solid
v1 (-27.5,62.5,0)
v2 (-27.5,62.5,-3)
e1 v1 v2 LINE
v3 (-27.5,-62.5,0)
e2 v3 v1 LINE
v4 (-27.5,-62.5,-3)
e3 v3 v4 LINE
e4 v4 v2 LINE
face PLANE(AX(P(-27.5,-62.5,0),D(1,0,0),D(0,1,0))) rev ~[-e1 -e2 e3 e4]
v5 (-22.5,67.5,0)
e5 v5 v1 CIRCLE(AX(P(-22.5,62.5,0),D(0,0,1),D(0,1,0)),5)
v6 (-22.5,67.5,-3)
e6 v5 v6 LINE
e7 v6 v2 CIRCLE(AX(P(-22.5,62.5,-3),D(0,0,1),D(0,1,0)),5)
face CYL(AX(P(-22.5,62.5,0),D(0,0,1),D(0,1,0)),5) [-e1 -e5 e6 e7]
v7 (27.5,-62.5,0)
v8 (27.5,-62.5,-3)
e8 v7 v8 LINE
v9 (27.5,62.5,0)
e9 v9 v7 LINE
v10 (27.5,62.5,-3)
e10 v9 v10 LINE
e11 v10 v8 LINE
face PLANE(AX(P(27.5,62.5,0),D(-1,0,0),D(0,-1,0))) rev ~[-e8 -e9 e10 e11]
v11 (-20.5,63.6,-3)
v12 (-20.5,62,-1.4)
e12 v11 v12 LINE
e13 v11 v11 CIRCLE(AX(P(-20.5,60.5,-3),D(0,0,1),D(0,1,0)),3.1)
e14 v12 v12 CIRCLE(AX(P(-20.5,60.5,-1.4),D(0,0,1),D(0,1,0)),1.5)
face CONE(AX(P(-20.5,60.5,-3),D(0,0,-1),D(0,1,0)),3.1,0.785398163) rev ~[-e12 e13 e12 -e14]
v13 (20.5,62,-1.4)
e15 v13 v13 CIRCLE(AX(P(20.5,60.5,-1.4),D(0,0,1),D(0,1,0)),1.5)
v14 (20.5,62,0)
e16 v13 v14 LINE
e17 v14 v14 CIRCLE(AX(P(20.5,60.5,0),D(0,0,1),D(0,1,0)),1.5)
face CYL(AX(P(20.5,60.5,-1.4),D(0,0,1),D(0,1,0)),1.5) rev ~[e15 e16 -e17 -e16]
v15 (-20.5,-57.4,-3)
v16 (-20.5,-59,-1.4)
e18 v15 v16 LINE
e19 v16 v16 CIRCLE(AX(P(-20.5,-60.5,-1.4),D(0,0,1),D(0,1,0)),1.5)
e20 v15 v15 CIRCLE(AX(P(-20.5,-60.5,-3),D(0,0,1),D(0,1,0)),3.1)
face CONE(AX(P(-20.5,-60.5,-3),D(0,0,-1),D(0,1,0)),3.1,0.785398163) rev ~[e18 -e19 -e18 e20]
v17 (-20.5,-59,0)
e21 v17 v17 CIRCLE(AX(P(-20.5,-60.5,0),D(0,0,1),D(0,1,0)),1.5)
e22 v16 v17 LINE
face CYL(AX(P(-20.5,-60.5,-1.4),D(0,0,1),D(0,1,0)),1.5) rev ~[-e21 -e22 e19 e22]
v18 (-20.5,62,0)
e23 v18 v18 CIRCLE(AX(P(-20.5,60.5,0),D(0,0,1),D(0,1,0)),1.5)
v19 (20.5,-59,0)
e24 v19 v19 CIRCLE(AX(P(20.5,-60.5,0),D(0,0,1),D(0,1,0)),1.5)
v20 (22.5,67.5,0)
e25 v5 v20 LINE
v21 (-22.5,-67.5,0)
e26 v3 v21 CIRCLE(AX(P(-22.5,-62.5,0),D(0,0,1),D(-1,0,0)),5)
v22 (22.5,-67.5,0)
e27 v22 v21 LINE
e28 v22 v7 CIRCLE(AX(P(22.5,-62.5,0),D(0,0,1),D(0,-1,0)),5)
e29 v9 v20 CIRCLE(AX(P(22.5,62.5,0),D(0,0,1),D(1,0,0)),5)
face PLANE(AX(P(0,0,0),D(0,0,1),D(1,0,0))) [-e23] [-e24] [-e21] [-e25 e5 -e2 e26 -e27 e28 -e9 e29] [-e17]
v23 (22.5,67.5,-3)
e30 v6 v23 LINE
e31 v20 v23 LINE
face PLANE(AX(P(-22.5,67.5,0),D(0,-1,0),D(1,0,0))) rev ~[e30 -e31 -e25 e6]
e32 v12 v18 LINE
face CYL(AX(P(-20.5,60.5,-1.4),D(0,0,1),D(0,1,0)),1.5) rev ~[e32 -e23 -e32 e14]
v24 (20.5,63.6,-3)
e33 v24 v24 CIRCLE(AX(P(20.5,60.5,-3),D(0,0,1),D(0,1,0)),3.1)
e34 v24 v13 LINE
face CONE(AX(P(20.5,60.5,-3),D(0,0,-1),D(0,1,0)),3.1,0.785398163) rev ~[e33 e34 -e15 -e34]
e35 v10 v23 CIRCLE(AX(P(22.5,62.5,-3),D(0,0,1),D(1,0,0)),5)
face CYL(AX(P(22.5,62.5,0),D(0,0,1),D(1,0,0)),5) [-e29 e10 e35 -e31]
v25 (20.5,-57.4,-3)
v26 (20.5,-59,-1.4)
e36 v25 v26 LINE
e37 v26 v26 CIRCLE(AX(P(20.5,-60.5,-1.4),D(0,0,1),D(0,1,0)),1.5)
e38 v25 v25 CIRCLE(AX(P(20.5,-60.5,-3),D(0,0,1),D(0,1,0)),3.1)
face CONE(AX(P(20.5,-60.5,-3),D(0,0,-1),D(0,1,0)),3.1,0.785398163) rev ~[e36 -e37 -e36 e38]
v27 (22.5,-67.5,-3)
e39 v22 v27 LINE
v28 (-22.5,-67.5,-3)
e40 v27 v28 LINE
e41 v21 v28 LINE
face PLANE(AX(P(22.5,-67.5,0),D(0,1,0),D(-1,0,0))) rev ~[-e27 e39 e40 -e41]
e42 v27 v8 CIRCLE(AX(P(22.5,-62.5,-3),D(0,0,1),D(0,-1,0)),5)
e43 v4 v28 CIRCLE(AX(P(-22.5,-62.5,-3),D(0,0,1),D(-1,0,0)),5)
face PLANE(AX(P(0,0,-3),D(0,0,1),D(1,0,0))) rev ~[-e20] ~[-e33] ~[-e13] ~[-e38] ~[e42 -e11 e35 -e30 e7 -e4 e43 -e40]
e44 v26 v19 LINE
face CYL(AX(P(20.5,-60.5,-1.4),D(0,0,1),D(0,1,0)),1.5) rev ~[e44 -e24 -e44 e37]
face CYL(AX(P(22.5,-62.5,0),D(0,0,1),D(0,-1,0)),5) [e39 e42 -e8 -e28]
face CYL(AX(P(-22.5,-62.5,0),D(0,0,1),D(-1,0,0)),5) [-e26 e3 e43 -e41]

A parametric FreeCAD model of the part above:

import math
import FreeCAD as App
import Part
import Sketcher
from FreeCAD import Vector

doc = App.newDocument("Part")
body = doc.addObject("PartDesign::Body", "Body")

# Sketch on XY plane
sketch1 = doc.addObject("Sketcher::SketchObject", "Sketch")
body.addObject(sketch1)
sketch1.AttachmentSupport = (doc.XY_Plane, [""])
sketch1.MapMode = "FlatFace"
sketch1.addGeometry([
    Part.LineSegment(Vector(-22, -68, 0), Vector(22, -68, 0)),  # 0
    Part.ArcOfCircle(Part.Circle(Vector(22, -62, 0), Vector(0, 0, 1), 5), math.radians(-90), math.radians(0)),  # 1
    Part.LineSegment(Vector(28, -62, 0), Vector(28, 62, 0)),  # 2
    Part.ArcOfCircle(Part.Circle(Vector(22, 62, 0), Vector(0, 0, 1), 5), math.radians(0), math.radians(90)),  # 3
    Part.LineSegment(Vector(22, 68, 0), Vector(-22, 68, 0)),  # 4
    Part.ArcOfCircle(Part.Circle(Vector(-22, 62, 0), Vector(0, 0, 1), 5), math.radians(90), math.radians(180)),  # 5
    Part.LineSegment(Vector(-28, 62, 0), Vector(-28, -62, 0)),  # 6
    Part.ArcOfCircle(Part.Circle(Vector(-22, -62, 0), Vector(0, 0, 1), 5), math.radians(180), math.radians(270)),  # 7
], False)
sketch1.addConstraint([
    Sketcher.Constraint("Tangent", 0, 2, 1, 1),
    Sketcher.Constraint("Tangent", 1, 2, 2, 1),
    Sketcher.Constraint("Tangent", 2, 2, 3, 1),
    Sketcher.Constraint("Tangent", 3, 2, 4, 1),
    Sketcher.Constraint("Tangent", 4, 2, 5, 1),
    Sketcher.Constraint("Tangent", 5, 2, 6, 1),
    Sketcher.Constraint("Tangent", 6, 2, 7, 1),
    Sketcher.Constraint("Tangent", 7, 2, 0, 1),
    Sketcher.Constraint("Horizontal", 0),
    Sketcher.Constraint("Vertical", 2),
    Sketcher.Constraint("Horizontal", 4),
    Sketcher.Constraint("Vertical", 6),
    Sketcher.Constraint("Equal", 1, 3),
    Sketcher.Constraint("Equal", 3, 5),
    Sketcher.Constraint("Equal", 5, 7),
    Sketcher.Constraint("Symmetric", 1, 3, 5, 3, -1, 1),
    Sketcher.Constraint("Radius", 1, 5.0),
    Sketcher.Constraint("DistanceX", 0, 1, 0, 2, 45.0),
    Sketcher.Constraint("DistanceY", 2, 1, 2, 2, 125.0),
])
pad1 = doc.addObject("PartDesign::Pad", "Pad")
body.addObject(pad1)
pad1.Profile = sketch1
pad1.Length = 3
pad1.Reversed = True

# Sketch on XY plane
sketch2 = doc.addObject("Sketcher::SketchObject", "Sketch001")
body.addObject(sketch2)
sketch2.AttachmentSupport = (doc.XY_Plane, [""])
sketch2.MapMode = "FlatFace"
sketch2.AttachmentOffset = App.Placement(Vector(0, 0, -3), App.Rotation())
sketch2.addGeometry([
    Part.Circle(Vector(-20.5, -60.5, 0), Vector(0, 0, 1), 1.5),
    Part.Circle(Vector(20.5, -60.5, 0), Vector(0, 0, 1), 1.5),
    Part.Circle(Vector(-20.5, 60.5, 0), Vector(0, 0, 1), 1.5),
    Part.Circle(Vector(20.5, 60.5, 0), Vector(0, 0, 1), 1.5),
], False)
sketch2.addConstraint([
    Sketcher.Constraint("Equal", 0, 1),
    Sketcher.Constraint("Equal", 1, 2),
    Sketcher.Constraint("Equal", 2, 3),
    Sketcher.Constraint("Symmetric", 1, 3, 2, 3, -1, 1),
    Sketcher.Constraint("Symmetric", 0, 3, 3, 3, -1, 1),
    Sketcher.Constraint("Symmetric", 0, 3, 1, 3, -2),
    Sketcher.Constraint("Diameter", 0, 3.0),
    Sketcher.Constraint("DistanceX", 0, 3, 1, 3, 41.0),
    Sketcher.Constraint("DistanceY", 0, 3, 2, 3, 121.0),
])
doc.recompute()
hole = doc.addObject("PartDesign::Hole", "Hole")
body.addObject(hole)
hole.Profile = sketch2
hole.ThreadType = "None"
hole.Diameter = 3
hole.DepthType = "ThroughAll"
hole.HoleCutType = "Countersink"
hole.HoleCutDiameter = 6.2
hole.HoleCutCountersinkAngle = 90
hole.Reversed = True

doc.recompute()
